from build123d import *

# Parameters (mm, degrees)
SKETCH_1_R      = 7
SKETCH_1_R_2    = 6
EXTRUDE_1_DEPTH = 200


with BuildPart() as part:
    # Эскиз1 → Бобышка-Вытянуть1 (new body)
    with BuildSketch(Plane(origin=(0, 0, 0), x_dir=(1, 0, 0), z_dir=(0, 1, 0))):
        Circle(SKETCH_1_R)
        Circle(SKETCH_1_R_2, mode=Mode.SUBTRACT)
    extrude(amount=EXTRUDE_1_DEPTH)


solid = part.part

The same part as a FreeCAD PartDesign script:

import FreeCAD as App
import Part
import Sketcher
Q = App.Units.Quantity

doc = App.newDocument("Part")
body = doc.addObject("PartDesign::Body", "Body")

# Sketch on XZ plane
sketch1 = body.newObject("Sketcher::SketchObject", "Sketch")
sketch1.AttachmentSupport = (doc.getObject("XZ_Plane"), [""])
sketch1.MapMode = "FlatFace"
sketch1.addGeometry([
    Part.Circle(App.Vector(0, 0, 0), App.Vector(0, 0, 1), 7),
    Part.Circle(App.Vector(0, 0, 0), App.Vector(0, 0, 1), 6),
], False)
sketch1.addConstraint([
    Sketcher.Constraint("Coincident", 0, 3, -1, 1),
    Sketcher.Constraint("Coincident", 1, 3, -1, 1),
    Sketcher.Constraint("Diameter", 0, Q("14 mm")),
    Sketcher.Constraint("Diameter", 1, Q("12 mm")),
])
pad1 = body.newObject("PartDesign::Pad", "Pad")
pad1.Profile = sketch1
pad1.Length = 200
pad1.Reversed = True

doc.recompute()
